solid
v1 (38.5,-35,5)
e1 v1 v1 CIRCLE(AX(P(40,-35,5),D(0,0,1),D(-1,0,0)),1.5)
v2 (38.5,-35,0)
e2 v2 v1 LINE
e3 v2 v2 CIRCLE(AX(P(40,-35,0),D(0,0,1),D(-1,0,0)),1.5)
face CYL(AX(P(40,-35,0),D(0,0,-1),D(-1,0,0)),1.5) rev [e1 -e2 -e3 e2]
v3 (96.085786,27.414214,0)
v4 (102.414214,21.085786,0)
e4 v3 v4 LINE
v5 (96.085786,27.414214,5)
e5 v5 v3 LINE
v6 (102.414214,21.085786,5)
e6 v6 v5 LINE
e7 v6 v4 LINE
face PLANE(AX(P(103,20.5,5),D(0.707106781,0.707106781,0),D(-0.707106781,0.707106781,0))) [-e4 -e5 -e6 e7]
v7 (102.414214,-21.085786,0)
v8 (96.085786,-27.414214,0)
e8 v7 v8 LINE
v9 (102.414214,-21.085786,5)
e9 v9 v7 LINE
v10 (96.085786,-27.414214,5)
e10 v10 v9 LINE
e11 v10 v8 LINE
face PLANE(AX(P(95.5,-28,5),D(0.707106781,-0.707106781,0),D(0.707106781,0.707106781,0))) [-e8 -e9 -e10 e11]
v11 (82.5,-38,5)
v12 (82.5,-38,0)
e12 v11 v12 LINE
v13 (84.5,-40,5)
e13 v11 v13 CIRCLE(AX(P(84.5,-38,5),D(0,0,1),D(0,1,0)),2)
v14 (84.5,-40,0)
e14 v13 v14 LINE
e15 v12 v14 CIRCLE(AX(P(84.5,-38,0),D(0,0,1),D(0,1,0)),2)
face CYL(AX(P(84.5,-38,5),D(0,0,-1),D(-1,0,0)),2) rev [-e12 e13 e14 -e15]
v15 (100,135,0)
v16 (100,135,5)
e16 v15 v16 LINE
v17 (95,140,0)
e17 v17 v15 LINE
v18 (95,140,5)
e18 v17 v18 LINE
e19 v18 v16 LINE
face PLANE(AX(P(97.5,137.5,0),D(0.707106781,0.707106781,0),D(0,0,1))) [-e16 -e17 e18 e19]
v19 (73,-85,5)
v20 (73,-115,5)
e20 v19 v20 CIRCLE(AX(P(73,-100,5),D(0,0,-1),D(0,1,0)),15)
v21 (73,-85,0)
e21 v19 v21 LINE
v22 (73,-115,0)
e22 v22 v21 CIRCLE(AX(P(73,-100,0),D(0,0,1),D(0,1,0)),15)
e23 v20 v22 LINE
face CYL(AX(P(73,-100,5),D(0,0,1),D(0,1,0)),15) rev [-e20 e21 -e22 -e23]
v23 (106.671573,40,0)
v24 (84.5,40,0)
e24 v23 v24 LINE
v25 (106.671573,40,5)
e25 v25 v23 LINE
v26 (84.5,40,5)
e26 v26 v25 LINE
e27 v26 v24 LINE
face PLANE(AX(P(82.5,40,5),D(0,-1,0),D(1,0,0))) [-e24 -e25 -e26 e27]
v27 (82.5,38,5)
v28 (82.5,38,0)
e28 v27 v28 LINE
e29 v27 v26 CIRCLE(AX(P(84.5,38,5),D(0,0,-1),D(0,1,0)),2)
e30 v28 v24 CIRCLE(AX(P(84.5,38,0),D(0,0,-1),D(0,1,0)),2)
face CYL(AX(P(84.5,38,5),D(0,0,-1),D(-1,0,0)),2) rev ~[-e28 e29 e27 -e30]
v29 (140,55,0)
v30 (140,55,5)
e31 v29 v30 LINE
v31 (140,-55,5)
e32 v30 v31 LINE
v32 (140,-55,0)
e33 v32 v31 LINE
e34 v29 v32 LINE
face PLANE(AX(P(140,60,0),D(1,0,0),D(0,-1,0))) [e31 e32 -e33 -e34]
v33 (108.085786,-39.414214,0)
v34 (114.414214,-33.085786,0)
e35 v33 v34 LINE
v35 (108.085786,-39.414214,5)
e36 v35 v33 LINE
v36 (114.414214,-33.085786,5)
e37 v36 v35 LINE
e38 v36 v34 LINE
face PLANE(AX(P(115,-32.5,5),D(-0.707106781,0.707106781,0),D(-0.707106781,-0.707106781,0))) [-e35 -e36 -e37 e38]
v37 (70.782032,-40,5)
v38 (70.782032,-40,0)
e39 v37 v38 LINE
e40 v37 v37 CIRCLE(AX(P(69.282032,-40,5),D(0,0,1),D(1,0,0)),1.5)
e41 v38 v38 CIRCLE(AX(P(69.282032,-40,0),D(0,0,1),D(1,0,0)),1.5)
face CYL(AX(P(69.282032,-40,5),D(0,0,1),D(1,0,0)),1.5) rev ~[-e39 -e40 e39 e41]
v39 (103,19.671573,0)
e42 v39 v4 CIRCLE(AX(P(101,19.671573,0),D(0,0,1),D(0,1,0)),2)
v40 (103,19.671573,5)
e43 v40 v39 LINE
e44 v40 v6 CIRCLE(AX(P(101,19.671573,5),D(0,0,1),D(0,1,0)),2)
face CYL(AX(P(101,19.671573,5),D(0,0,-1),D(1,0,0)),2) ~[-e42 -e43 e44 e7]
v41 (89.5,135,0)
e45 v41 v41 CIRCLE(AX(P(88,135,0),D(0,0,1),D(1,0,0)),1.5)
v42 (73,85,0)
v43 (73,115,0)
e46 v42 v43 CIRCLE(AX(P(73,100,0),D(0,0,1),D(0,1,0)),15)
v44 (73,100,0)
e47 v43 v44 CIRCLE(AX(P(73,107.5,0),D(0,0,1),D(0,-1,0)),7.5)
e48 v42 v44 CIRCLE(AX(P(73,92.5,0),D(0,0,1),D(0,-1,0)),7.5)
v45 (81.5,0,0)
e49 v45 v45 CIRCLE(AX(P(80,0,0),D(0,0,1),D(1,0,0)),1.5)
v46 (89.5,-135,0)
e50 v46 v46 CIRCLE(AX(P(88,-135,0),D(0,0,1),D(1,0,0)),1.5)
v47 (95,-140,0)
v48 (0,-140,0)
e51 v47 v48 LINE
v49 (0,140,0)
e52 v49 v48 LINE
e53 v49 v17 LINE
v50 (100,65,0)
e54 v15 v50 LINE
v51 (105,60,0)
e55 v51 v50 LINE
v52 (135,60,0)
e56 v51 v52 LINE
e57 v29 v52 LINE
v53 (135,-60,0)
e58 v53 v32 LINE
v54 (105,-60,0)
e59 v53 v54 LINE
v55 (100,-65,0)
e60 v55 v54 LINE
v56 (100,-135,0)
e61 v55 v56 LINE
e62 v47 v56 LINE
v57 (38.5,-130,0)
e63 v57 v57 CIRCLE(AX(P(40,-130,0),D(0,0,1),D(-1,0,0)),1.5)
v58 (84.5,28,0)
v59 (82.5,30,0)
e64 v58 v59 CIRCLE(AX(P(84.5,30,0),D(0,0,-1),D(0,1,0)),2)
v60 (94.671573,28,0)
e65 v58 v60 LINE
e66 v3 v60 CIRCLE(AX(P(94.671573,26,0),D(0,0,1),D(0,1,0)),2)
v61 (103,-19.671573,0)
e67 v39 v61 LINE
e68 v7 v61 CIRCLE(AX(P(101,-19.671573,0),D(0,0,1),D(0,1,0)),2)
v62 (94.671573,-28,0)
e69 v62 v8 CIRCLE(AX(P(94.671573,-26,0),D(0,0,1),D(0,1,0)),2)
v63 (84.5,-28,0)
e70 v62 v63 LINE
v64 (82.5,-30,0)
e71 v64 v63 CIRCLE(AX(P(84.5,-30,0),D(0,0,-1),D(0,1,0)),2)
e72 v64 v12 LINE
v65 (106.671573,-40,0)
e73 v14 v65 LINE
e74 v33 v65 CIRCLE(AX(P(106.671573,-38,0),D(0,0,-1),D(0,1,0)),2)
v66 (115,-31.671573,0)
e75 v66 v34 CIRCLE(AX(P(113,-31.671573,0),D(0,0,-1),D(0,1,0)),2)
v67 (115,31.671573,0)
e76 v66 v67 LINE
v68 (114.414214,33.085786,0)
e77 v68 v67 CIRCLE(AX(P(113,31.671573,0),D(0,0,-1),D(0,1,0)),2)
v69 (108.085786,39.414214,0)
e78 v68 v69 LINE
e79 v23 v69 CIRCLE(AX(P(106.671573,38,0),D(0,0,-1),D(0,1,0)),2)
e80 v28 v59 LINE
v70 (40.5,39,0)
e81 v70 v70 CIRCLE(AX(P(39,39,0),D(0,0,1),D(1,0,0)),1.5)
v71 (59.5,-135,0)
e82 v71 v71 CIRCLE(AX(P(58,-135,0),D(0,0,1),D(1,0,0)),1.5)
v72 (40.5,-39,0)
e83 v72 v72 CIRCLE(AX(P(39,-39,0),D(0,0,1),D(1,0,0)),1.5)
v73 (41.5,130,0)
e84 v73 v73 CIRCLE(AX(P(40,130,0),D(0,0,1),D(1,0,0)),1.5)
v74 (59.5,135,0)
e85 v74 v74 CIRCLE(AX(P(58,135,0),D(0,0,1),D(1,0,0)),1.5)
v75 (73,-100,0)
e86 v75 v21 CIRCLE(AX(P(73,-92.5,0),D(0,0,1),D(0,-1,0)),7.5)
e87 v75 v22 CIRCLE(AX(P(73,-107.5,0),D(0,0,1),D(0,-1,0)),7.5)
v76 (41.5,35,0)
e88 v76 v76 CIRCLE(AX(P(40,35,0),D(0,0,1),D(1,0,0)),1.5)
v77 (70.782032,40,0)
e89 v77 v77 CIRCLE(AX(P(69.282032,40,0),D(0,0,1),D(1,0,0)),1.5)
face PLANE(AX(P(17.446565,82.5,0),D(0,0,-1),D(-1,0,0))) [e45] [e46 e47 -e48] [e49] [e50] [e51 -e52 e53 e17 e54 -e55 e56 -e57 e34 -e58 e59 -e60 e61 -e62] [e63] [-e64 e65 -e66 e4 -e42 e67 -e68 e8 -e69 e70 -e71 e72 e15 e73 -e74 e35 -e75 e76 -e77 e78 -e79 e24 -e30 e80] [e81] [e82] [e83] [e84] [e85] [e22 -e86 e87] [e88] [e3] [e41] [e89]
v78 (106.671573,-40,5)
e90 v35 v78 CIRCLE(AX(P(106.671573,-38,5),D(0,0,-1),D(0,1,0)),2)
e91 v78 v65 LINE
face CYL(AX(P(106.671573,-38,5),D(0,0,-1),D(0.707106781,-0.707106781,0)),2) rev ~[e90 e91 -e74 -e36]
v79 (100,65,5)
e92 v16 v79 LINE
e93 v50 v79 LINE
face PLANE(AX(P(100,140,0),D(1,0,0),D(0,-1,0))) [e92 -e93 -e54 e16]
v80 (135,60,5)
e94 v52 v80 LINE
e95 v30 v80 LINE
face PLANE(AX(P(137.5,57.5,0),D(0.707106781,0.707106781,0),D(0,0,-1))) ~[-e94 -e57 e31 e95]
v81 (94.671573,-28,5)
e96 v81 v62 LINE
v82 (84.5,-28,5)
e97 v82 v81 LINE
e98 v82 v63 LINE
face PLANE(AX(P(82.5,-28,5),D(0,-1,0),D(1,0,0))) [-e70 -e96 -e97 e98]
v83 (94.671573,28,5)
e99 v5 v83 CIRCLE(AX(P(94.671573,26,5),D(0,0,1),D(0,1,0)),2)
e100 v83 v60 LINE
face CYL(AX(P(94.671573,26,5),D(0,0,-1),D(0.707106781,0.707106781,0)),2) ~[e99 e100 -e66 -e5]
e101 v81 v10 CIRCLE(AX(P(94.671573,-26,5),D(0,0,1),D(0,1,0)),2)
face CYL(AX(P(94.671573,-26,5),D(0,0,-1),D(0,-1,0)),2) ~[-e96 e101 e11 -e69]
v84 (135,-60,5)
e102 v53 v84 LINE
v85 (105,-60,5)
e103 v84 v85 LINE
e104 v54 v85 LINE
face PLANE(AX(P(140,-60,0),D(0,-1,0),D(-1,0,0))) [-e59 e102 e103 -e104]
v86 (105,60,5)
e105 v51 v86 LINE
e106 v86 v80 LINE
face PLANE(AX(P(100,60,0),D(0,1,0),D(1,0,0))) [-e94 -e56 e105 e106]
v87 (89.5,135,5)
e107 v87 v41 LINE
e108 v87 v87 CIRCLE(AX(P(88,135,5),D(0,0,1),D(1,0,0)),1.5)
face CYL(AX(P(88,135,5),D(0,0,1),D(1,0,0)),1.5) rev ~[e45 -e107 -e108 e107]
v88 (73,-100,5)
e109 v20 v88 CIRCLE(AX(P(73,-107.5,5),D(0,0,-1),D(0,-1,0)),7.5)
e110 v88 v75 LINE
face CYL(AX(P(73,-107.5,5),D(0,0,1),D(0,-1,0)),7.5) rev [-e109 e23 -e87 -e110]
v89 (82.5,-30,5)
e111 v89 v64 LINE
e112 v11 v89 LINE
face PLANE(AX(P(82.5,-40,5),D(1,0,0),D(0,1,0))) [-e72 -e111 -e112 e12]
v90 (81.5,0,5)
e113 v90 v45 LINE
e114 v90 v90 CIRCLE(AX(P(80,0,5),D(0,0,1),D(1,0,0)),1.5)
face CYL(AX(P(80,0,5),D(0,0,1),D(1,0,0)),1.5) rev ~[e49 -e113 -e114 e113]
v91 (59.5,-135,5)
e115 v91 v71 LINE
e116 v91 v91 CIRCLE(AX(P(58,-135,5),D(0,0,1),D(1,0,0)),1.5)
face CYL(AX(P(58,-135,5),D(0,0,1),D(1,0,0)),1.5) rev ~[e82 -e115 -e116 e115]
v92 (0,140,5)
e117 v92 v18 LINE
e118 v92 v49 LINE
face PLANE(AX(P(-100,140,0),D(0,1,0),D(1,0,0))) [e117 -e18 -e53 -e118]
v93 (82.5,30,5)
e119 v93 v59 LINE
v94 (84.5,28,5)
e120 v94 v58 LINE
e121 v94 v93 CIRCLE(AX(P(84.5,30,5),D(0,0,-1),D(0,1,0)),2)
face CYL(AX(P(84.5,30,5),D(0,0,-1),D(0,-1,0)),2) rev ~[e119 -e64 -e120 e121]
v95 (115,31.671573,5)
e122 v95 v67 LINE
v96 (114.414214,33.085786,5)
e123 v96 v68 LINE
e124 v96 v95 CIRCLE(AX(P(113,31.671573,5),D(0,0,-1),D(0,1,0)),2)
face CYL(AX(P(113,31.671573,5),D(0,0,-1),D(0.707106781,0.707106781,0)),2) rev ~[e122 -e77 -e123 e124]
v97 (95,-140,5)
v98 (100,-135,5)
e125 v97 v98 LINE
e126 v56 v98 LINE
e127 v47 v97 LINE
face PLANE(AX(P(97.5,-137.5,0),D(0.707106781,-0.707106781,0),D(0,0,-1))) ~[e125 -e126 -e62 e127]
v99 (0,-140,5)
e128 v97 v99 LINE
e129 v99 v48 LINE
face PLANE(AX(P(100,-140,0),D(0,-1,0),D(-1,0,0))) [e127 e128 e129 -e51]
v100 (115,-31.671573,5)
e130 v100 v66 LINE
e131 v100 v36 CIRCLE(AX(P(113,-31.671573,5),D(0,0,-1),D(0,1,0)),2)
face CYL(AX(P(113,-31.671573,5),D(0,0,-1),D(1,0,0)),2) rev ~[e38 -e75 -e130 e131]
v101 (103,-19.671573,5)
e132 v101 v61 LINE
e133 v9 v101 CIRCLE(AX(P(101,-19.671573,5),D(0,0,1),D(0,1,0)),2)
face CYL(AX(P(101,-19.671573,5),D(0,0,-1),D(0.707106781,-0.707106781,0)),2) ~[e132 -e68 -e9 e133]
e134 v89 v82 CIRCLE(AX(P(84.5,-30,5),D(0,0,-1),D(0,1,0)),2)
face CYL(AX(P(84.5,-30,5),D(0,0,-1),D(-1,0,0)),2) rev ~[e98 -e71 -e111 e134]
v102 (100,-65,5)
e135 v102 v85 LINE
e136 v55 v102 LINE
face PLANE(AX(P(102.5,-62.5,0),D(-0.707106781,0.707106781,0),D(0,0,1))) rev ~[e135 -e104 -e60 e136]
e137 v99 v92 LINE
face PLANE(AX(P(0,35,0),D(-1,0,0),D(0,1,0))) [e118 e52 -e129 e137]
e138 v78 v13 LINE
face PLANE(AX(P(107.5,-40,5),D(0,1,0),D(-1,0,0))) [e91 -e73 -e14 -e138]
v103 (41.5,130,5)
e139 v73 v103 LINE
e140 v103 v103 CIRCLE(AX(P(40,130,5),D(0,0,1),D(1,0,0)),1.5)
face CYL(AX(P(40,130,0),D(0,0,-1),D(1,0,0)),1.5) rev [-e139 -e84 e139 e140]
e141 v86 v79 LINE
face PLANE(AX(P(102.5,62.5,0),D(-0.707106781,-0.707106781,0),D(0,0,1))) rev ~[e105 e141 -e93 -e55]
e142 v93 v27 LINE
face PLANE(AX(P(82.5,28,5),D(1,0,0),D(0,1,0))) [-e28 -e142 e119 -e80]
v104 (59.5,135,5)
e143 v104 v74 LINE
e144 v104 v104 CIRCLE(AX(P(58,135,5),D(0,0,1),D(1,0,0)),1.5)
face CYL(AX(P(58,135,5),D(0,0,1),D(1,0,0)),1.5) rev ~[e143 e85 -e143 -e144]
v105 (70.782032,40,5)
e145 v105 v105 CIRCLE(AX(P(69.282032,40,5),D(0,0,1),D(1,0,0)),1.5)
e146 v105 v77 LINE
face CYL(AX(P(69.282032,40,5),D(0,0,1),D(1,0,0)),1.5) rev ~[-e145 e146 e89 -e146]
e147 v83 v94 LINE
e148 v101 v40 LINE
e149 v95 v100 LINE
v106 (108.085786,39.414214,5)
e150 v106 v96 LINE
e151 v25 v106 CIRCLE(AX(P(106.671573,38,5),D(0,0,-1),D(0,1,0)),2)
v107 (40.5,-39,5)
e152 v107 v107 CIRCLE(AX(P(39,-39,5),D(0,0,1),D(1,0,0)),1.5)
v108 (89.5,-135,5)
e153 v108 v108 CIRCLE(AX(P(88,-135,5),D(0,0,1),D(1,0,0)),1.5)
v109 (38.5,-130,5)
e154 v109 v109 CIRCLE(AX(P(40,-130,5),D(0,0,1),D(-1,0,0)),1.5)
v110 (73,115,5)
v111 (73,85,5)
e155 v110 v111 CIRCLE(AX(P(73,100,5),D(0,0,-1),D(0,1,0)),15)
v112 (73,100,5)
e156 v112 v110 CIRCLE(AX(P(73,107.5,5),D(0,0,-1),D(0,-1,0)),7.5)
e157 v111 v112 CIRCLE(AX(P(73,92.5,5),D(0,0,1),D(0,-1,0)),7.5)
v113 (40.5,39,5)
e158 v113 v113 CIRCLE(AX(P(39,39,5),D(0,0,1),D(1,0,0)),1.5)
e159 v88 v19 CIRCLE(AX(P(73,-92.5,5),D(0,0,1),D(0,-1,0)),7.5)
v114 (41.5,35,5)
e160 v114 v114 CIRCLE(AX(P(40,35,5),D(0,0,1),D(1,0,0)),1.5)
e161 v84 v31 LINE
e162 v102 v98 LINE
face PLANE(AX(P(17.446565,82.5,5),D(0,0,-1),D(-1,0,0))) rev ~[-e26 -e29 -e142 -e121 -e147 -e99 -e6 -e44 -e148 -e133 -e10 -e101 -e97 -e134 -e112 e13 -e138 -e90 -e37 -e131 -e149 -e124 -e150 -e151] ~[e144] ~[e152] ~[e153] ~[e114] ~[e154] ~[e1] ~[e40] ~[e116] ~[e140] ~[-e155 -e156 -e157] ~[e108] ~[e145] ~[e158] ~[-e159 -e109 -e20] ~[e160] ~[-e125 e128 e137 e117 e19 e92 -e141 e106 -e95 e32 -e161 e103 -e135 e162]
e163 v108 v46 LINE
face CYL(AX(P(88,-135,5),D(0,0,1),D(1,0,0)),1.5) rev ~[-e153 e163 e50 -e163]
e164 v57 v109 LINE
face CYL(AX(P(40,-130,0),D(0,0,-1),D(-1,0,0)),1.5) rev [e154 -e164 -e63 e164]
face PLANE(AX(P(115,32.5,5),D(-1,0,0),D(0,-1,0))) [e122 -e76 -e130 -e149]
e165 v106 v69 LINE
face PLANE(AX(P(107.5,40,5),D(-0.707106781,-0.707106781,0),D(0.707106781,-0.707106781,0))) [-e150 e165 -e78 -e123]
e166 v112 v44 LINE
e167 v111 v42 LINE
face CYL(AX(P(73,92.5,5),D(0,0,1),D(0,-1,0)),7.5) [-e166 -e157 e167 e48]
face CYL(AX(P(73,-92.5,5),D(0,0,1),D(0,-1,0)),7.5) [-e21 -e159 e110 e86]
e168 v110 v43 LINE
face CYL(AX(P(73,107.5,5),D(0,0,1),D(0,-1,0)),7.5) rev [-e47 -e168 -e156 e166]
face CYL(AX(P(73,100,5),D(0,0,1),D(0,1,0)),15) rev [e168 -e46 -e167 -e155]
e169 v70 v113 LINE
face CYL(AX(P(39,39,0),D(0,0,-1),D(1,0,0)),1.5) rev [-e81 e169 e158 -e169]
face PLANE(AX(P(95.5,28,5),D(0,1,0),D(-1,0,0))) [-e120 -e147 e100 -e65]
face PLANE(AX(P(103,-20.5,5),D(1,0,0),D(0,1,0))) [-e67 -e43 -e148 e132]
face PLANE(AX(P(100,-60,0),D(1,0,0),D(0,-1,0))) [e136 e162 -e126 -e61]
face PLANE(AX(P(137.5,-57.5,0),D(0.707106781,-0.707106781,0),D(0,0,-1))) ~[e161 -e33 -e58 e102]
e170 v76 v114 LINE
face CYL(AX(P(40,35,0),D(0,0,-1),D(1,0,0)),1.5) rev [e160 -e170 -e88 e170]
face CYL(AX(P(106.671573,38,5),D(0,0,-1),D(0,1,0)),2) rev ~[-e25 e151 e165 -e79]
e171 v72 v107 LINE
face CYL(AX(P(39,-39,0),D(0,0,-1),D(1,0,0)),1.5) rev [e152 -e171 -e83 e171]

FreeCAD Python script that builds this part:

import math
import FreeCAD as App
import Part
import Sketcher
from FreeCAD import Vector
Q = App.Units.Quantity


def edges_at(feature, points):
    """Names of the edges that pass closest to the given points."""
    edges = feature.Shape.Edges
    near = lambda p: min(range(len(edges)), key=lambda i: edges[i].distToShape(Part.Vertex(*p))[0])
    return sorted({f"Edge{near(p) + 1}" for p in points})

doc = App.newDocument("Part")
params = doc.addObject("Spreadsheet::Sheet", "Params")
for row, (alias, value) in enumerate([
    ("sketch1_diameter", "3 mm"),
    ("sketch1_width", "200 mm"),
    ("sketch1_width2", "40 mm"),
    ("sketch1_height", "80 mm"),
    ("sketch1_height2", "120 mm"),
    ("pad1_length", "5 mm"),
    ("chamfer_size", "5 mm"),
    ("sketch2_diameter", "3 mm"),
    ("sketch2_radius", "15 mm"),
    ("sketch2_width", "50 mm"),
    ("sketch2_width2", "25 mm"),
    ("sketch2_width3", "13 mm"),
    ("pocket1_length", "10 mm"),
    ("fillet_radius", "10 mm"),
    ("fillet2_radius", "2 mm"),
    ("sketch3_width", "95 mm"),
    ("sketch3_width2", "30 mm"),
    ("sketch3_height", "280 mm"),
    ("sketch3_height2", "70 mm"),
    ("sketch3_height3", "110 mm"),
    ("sketch4_radius", "10 mm"),
    ("sketch4_radius2", "15 mm"),
    ("sketch4_height", "95 mm"),
    ("pad2_length", "5 mm"),
], start=1):
    params.set(f"A{row}", alias)
    params.set(f"B{row}", "=" + value)
    params.setAlias(f"B{row}", alias)

body = doc.addObject("PartDesign::Body", "Body")

# Sketch on XY plane
sketch1 = body.newObject("Sketcher::SketchObject", "Sketch")
sketch1.AttachmentSupport = (doc.getObject("XY_Plane"), [""])
sketch1.MapMode = "FlatFace"
sketch1.addGeometry([
    Part.LineSegment(Vector(-100, -60, 0), Vector(-100, -140, 0)),  # 0
    Part.LineSegment(Vector(-100, -140, 0), Vector(100, -140, 0)),  # 1
    Part.LineSegment(Vector(100, -140, 0), Vector(100, -60, 0)),  # 2
    Part.LineSegment(Vector(100, -60, 0), Vector(140, -60, 0)),  # 3
    Part.LineSegment(Vector(140, -60, 0), Vector(140, 60, 0)),  # 4
    Part.LineSegment(Vector(140, 60, 0), Vector(100, 60, 0)),  # 5
    Part.LineSegment(Vector(100, 60, 0), Vector(100, 140, 0)),  # 6
    Part.LineSegment(Vector(100, 140, 0), Vector(-100, 140, 0)),  # 7
    Part.LineSegment(Vector(-100, 140, 0), Vector(-100, 60, 0)),  # 8
    Part.LineSegment(Vector(-100, 60, 0), Vector(-140, 60, 0)),  # 9
    Part.LineSegment(Vector(-140, 60, 0), Vector(-140, -60, 0)),  # 10
    Part.LineSegment(Vector(-140, -60, 0), Vector(-100, -60, 0)),  # 11
    Part.Circle(Vector(40, -130, 0), Vector(0, 0, 1), 1.5),  # 12
    Part.Circle(Vector(39, -39, 0), Vector(0, 0, 1), 1.5),  # 13
    Part.Circle(Vector(40, -35, 0), Vector(0, 0, 1), 1.5),  # 14
    Part.Circle(Vector(-40, -130, 0), Vector(0, 0, 1), 1.5),  # 15
    Part.Circle(Vector(-39, -39, 0), Vector(0, 0, 1), 1.5),  # 16
    Part.Circle(Vector(-40, -35, 0), Vector(0, 0, 1), 1.5),  # 17
    Part.Circle(Vector(40, 35, 0), Vector(0, 0, 1), 1.5),  # 18
    Part.Circle(Vector(39, 39, 0), Vector(0, 0, 1), 1.5),  # 19
    Part.Circle(Vector(40, 130, 0), Vector(0, 0, 1), 1.5),  # 20
    Part.Circle(Vector(-40, 35, 0), Vector(0, 0, 1), 1.5),  # 21
    Part.Circle(Vector(-39, 39, 0), Vector(0, 0, 1), 1.5),  # 22
    Part.Circle(Vector(-40, 130, 0), Vector(0, 0, 1), 1.5),  # 23
], False)
sketch1.addConstraint([
    Sketcher.Constraint("Coincident", 0, 2, 1, 1),
    Sketcher.Constraint("Coincident", 1, 2, 2, 1),
    Sketcher.Constraint("Coincident", 2, 2, 3, 1),
    Sketcher.Constraint("Coincident", 3, 2, 4, 1),
    Sketcher.Constraint("Coincident", 4, 2, 5, 1),
    Sketcher.Constraint("Coincident", 5, 2, 6, 1),
    Sketcher.Constraint("Coincident", 6, 2, 7, 1),
    Sketcher.Constraint("Coincident", 7, 2, 8, 1),
    Sketcher.Constraint("Coincident", 8, 2, 9, 1),
    Sketcher.Constraint("Coincident", 9, 2, 10, 1),
    Sketcher.Constraint("Coincident", 10, 2, 11, 1),
    Sketcher.Constraint("Coincident", 11, 2, 0, 1),
    Sketcher.Constraint("Vertical", 0),
    Sketcher.Constraint("Horizontal", 1),
    Sketcher.Constraint("Vertical", 2),
    Sketcher.Constraint("Horizontal", 3),
    Sketcher.Constraint("Vertical", 4),
    Sketcher.Constraint("Horizontal", 5),
    Sketcher.Constraint("Vertical", 6),
    Sketcher.Constraint("Horizontal", 7),
    Sketcher.Constraint("Vertical", 8),
    Sketcher.Constraint("Horizontal", 9),
    Sketcher.Constraint("Vertical", 10),
    Sketcher.Constraint("Horizontal", 11),
    Sketcher.Constraint("Equal", 12, 13),
    Sketcher.Constraint("Equal", 13, 14),
    Sketcher.Constraint("Equal", 14, 15),
    Sketcher.Constraint("Equal", 15, 16),
    Sketcher.Constraint("Equal", 16, 17),
    Sketcher.Constraint("Equal", 17, 18),
    Sketcher.Constraint("Equal", 18, 19),
    Sketcher.Constraint("Equal", 19, 20),
    Sketcher.Constraint("Equal", 20, 21),
    Sketcher.Constraint("Equal", 21, 22),
    Sketcher.Constraint("Equal", 22, 23),
    Sketcher.Constraint("Symmetric", 17, 3, 18, 3, -1, 1),
    Sketcher.Constraint("Symmetric", 16, 3, 19, 3, -1, 1),
    Sketcher.Constraint("Symmetric", 15, 3, 20, 3, -1, 1),
    Sketcher.Constraint("Symmetric", 14, 3, 21, 3, -1, 1),
    Sketcher.Constraint("Symmetric", 13, 3, 22, 3, -1, 1),
    Sketcher.Constraint("Symmetric", 12, 3, 23, 3, -1, 1),
    Sketcher.Constraint("Symmetric", 0, 2, 6, 2, -1, 1),
    Sketcher.Constraint("Symmetric", 2, 2, 8, 2, -1, 1),
    Sketcher.Constraint("Symmetric", 4, 2, 10, 2, -1, 1),
    Sketcher.Constraint("Symmetric", 12, 3, 15, 3, -2),
    Sketcher.Constraint("Symmetric", 13, 3, 16, 3, -2),
    Sketcher.Constraint("Symmetric", 14, 3, 17, 3, -2),
    Sketcher.Constraint("Symmetric", 5, 2, 8, 2, -2),
    Sketcher.Constraint("Vertical", 12, 3, 14, 3),
    Sketcher.Constraint("Diameter", 12, Q("3 mm")),
    Sketcher.Constraint("DistanceX", 1, 1, 1, 2, Q("200 mm")),
    Sketcher.Constraint("DistanceX", 3, 1, 3, 2, Q("40 mm")),
    Sketcher.Constraint("DistanceY", 0, 2, 0, 1, Q("80 mm")),
    Sketcher.Constraint("DistanceY", 4, 1, 4, 2, Q("120 mm")),
    Sketcher.Constraint("DistanceX", -1, 1, 12, 3, Q("40 mm")),
    Sketcher.Constraint("DistanceY", 12, 3, -1, 1, Q("130 mm")),
    Sketcher.Constraint("DistanceX", -1, 1, 13, 3, Q("39 mm")),
    Sketcher.Constraint("DistanceY", 13, 3, -1, 1, Q("39 mm")),
    Sketcher.Constraint("DistanceY", 14, 3, -1, 1, Q("35 mm")),
])
sketch1.setExpression("Constraints[49]", "Params.sketch1_diameter")
sketch1.setExpression("Constraints[50]", "Params.sketch1_width")
sketch1.setExpression("Constraints[51]", "Params.sketch1_width2")
sketch1.setExpression("Constraints[52]", "Params.sketch1_height")
sketch1.setExpression("Constraints[53]", "Params.sketch1_height2")
pad1 = body.newObject("PartDesign::Pad", "Pad")
pad1.Profile = sketch1
pad1.setExpression("Length", "Params.pad1_length")
doc.recompute()

chamfer = body.newObject("PartDesign::Chamfer", "Chamfer")
chamfer.Base = (pad1, edges_at(pad1, [
    (-100, -140, 2.5),
    (-100, -60, 2.5),
    (-140, -60, 2.5),
    (-140, 60, 2.5),
    (-100, 60, 2.5),
    (-100, 140, 2.5),
    (100, 140, 2.5),
    (100, 60, 2.5),
    (140, 60, 2.5),
    (140, -60, 2.5),
    (100, -60, 2.5),
    (100, -140, 2.5),
]))
chamfer.setExpression("Size", "Params.chamfer_size")

# Sketch on XY plane
sketch2 = body.newObject("Sketcher::SketchObject", "Sketch001")
sketch2.AttachmentSupport = (doc.getObject("XY_Plane"), [""])
sketch2.MapMode = "FlatFace"
sketch2.AttachmentOffset = App.Placement(Vector(0, 0, 5), App.Rotation())
sketch2.addGeometry([
    Part.Circle(Vector(-88, 135, 0), Vector(0, 0, 1), 1.5),  # 0
    Part.Circle(Vector(-58, 135, 0), Vector(0, 0, 1), 1.5),  # 1
    Part.Circle(Vector(58, 135, 0), Vector(0, 0, 1), 1.5),  # 2
    Part.Circle(Vector(88, 135, 0), Vector(0, 0, 1), 1.5),  # 3
    Part.Circle(Vector(88, -135, 0), Vector(0, 0, 1), 1.5),  # 4
    Part.Circle(Vector(58, -135, 0), Vector(0, 0, 1), 1.5),  # 5
    Part.Circle(Vector(-58, -135, 0), Vector(0, 0, 1), 1.5),  # 6
    Part.Circle(Vector(-88, -135, 0), Vector(0, 0, 1), 1.5),  # 7
    Part.Circle(Vector(-80, 0, 0), Vector(0, 0, 1), 1.5),  # 8
    Part.Circle(Vector(-69.3, 40, 0), Vector(0, 0, 1), 1.5),  # 9
    Part.Circle(Vector(69.3, 40, 0), Vector(0, 0, 1), 1.5),  # 10
    Part.Circle(Vector(80, 0, 0), Vector(0, 0, 1), 1.5),  # 11
    Part.Circle(Vector(69.3, -40, 0), Vector(0, 0, 1), 1.5),  # 12
    Part.Circle(Vector(-69.3, -40, 0), Vector(0, 0, 1), 1.5),  # 13
    Part.LineSegment(Vector(25, -35, 0), Vector(-25, -35, 0)),  # 14
    Part.ArcOfCircle(Part.Circle(Vector(-40, -35, 0), Vector(0, 0, 1), 15), math.radians(-90), math.radians(0)),  # 15
    Part.LineSegment(Vector(-40, -50, 0), Vector(-40, -115, 0)),  # 16
    Part.ArcOfCircle(Part.Circle(Vector(-40, -130, 0), Vector(0, 0, 1), 15), math.radians(0), math.radians(90)),  # 17
    Part.LineSegment(Vector(-25, -130, 0), Vector(25, -130, 0)),  # 18
    Part.ArcOfCircle(Part.Circle(Vector(40, -130, 0), Vector(0, 0, 1), 15), math.radians(90), math.radians(180)),  # 19
    Part.LineSegment(Vector(40, -115, 0), Vector(40, -50, 0)),  # 20
    Part.ArcOfCircle(Part.Circle(Vector(40, -35, 0), Vector(0, 0, 1), 15), math.radians(180), math.radians(270)),  # 21
    Part.LineSegment(Vector(-25, 35, 0), Vector(25, 35, 0)),  # 22
    Part.ArcOfCircle(Part.Circle(Vector(40, 35, 0), Vector(0, 0, 1), 15), math.radians(90), math.radians(180)),  # 23
    Part.LineSegment(Vector(40, 50, 0), Vector(40, 115, 0)),  # 24
    Part.ArcOfCircle(Part.Circle(Vector(40, 130, 0), Vector(0, 0, 1), 15), math.radians(180), math.radians(270)),  # 25
    Part.LineSegment(Vector(25, 130, 0), Vector(-25, 130, 0)),  # 26
    Part.ArcOfCircle(Part.Circle(Vector(-40, 130, 0), Vector(0, 0, 1), 15), math.radians(-90), math.radians(0)),  # 27
    Part.LineSegment(Vector(-40, 115, 0), Vector(-40, 50, 0)),  # 28
    Part.ArcOfCircle(Part.Circle(Vector(-40, 35, 0), Vector(0, 0, 1), 15), math.radians(0), math.radians(90)),  # 29
    Part.LineSegment(Vector(-20.1, -8.1, 0), Vector(-8.5, -19.9, 0)),  # 30
    Part.LineSegment(Vector(-8.5, -19.9, 0), Vector(8.1, -20.1, 0)),  # 31
    Part.LineSegment(Vector(8.1, -20.1, 0), Vector(19.9, -8.5, 0)),  # 32
    Part.LineSegment(Vector(19.9, -8.5, 0), Vector(20.1, 8.1, 0)),  # 33
    Part.LineSegment(Vector(20.1, 8.1, 0), Vector(8.5, 19.9, 0)),  # 34
    Part.LineSegment(Vector(8.5, 19.9, 0), Vector(-8.1, 20.1, 0)),  # 35
    Part.LineSegment(Vector(-8.1, 20.1, 0), Vector(-19.9, 8.5, 0)),  # 36
    Part.LineSegment(Vector(-19.9, 8.5, 0), Vector(-20.1, -8.1, 0)),  # 37
    Part.LineSegment(Vector(-82.5, 40, 0), Vector(-107.5, 40, 0)),  # 38
    Part.LineSegment(Vector(-107.5, 40, 0), Vector(-115, 32.5, 0)),  # 39
    Part.LineSegment(Vector(-115, 32.5, 0), Vector(-115, -32.5, 0)),  # 40
    Part.LineSegment(Vector(-115, -32.5, 0), Vector(-107.5, -40, 0)),  # 41
    Part.LineSegment(Vector(-107.5, -40, 0), Vector(-82.5, -40, 0)),  # 42
    Part.LineSegment(Vector(-82.5, -40, 0), Vector(-82.5, -28, 0)),  # 43
    Part.LineSegment(Vector(-82.5, -28, 0), Vector(-95.5, -28, 0)),  # 44
    Part.LineSegment(Vector(-95.5, -28, 0), Vector(-103, -20.5, 0)),  # 45
    Part.LineSegment(Vector(-103, -20.5, 0), Vector(-103, 20.5, 0)),  # 46
    Part.LineSegment(Vector(-103, 20.5, 0), Vector(-95.5, 28, 0)),  # 47
    Part.LineSegment(Vector(-95.5, 28, 0), Vector(-82.5, 28, 0)),  # 48
    Part.LineSegment(Vector(-82.5, 28, 0), Vector(-82.5, 40, 0)),  # 49
    Part.LineSegment(Vector(82.5, -40, 0), Vector(107.5, -40, 0)),  # 50
    Part.LineSegment(Vector(107.5, -40, 0), Vector(115, -32.5, 0)),  # 51
    Part.LineSegment(Vector(115, -32.5, 0), Vector(115, 32.5, 0)),  # 52
    Part.LineSegment(Vector(115, 32.5, 0), Vector(107.5, 40, 0)),  # 53
    Part.LineSegment(Vector(107.5, 40, 0), Vector(82.5, 40, 0)),  # 54
    Part.LineSegment(Vector(82.5, 40, 0), Vector(82.5, 28, 0)),  # 55
    Part.LineSegment(Vector(82.5, 28, 0), Vector(95.5, 28, 0)),  # 56
    Part.LineSegment(Vector(95.5, 28, 0), Vector(103, 20.5, 0)),  # 57
    Part.LineSegment(Vector(103, 20.5, 0), Vector(103, -20.5, 0)),  # 58
    Part.LineSegment(Vector(103, -20.5, 0), Vector(95.5, -28, 0)),  # 59
    Part.LineSegment(Vector(95.5, -28, 0), Vector(82.5, -28, 0)),  # 60
    Part.LineSegment(Vector(82.5, -28, 0), Vector(82.5, -40, 0)),  # 61
    Part.ArcOfCircle(Part.Circle(Vector(-73, -92.5, 0), Vector(0, 0, 1), 7.5), math.radians(90), math.radians(270)),  # 62
    Part.ArcOfCircle(Part.Circle(Vector(-73, -100, 0), Vector(0, 0, 1), 15), math.radians(90), math.radians(270)),  # 63
    Part.ArcOfCircle(Part.Circle(Vector(-73, -107.5, 0), Vector(0, 0, 1), 7.5), math.radians(-90), math.radians(90)),  # 64
    Part.ArcOfCircle(Part.Circle(Vector(-73, 100, 0), Vector(0, 0, 1), 15), math.radians(90), math.radians(270)),  # 65
    Part.ArcOfCircle(Part.Circle(Vector(-73, 92.5, 0), Vector(0, 0, 1), 7.5), math.radians(90), math.radians(270)),  # 66
    Part.ArcOfCircle(Part.Circle(Vector(-73, 107.5, 0), Vector(0, 0, 1), 7.5), math.radians(-90), math.radians(90)),  # 67
    Part.ArcOfCircle(Part.Circle(Vector(73, -100, 0), Vector(0, 0, 1), 15), math.radians(-90), math.radians(90)),  # 68
    Part.ArcOfCircle(Part.Circle(Vector(73, -92.5, 0), Vector(0, 0, 1), 7.5), math.radians(-90), math.radians(90)),  # 69
    Part.ArcOfCircle(Part.Circle(Vector(73, -107.5, 0), Vector(0, 0, 1), 7.5), math.radians(90), math.radians(270)),  # 70
    Part.ArcOfCircle(Part.Circle(Vector(73, 92.5, 0), Vector(0, 0, 1), 7.5), math.radians(-90), math.radians(90)),  # 71
    Part.ArcOfCircle(Part.Circle(Vector(73, 100, 0), Vector(0, 0, 1), 15), math.radians(-90), math.radians(90)),  # 72
    Part.ArcOfCircle(Part.Circle(Vector(73, 107.5, 0), Vector(0, 0, 1), 7.5), math.radians(90), math.radians(270)),  # 73
], False)
sketch2.addConstraint([
    Sketcher.Constraint("Coincident", 14, 2, 15, 2),
    Sketcher.Constraint("Coincident", 15, 1, 16, 1),
    Sketcher.Constraint("Coincident", 16, 2, 17, 2),
    Sketcher.Constraint("Coincident", 17, 1, 18, 1),
    Sketcher.Constraint("Coincident", 18, 2, 19, 2),
    Sketcher.Constraint("Coincident", 19, 1, 20, 1),
    Sketcher.Constraint("Coincident", 20, 2, 21, 2),
    Sketcher.Constraint("Coincident", 21, 1, 14, 1),
    Sketcher.Constraint("Coincident", 22, 2, 23, 2),
    Sketcher.Constraint("Coincident", 23, 1, 24, 1),
    Sketcher.Constraint("Coincident", 24, 2, 25, 2),
    Sketcher.Constraint("Coincident", 25, 1, 26, 1),
    Sketcher.Constraint("Coincident", 26, 2, 27, 2),
    Sketcher.Constraint("Coincident", 27, 1, 28, 1),
    Sketcher.Constraint("Coincident", 28, 2, 29, 2),
    Sketcher.Constraint("Coincident", 29, 1, 22, 1),
    Sketcher.Constraint("Coincident", 30, 2, 31, 1),
    Sketcher.Constraint("Coincident", 31, 2, 32, 1),
    Sketcher.Constraint("Coincident", 32, 2, 33, 1),
    Sketcher.Constraint("Coincident", 33, 2, 34, 1),
    Sketcher.Constraint("Coincident", 34, 2, 35, 1),
    Sketcher.Constraint("Coincident", 35, 2, 36, 1),
    Sketcher.Constraint("Coincident", 36, 2, 37, 1),
    Sketcher.Constraint("Coincident", 37, 2, 30, 1),
    Sketcher.Constraint("Coincident", 38, 2, 39, 1),
    Sketcher.Constraint("Coincident", 39, 2, 40, 1),
    Sketcher.Constraint("Coincident", 40, 2, 41, 1),
    Sketcher.Constraint("Coincident", 41, 2, 42, 1),
    Sketcher.Constraint("Coincident", 42, 2, 43, 1),
    Sketcher.Constraint("Coincident", 43, 2, 44, 1),
    Sketcher.Constraint("Coincident", 44, 2, 45, 1),
    Sketcher.Constraint("Coincident", 45, 2, 46, 1),
    Sketcher.Constraint("Coincident", 46, 2, 47, 1),
    Sketcher.Constraint("Coincident", 47, 2, 48, 1),
    Sketcher.Constraint("Coincident", 48, 2, 49, 1),
    Sketcher.Constraint("Coincident", 49, 2, 38, 1),
    Sketcher.Constraint("Coincident", 50, 2, 51, 1),
    Sketcher.Constraint("Coincident", 51, 2, 52, 1),
    Sketcher.Constraint("Coincident", 52, 2, 53, 1),
    Sketcher.Constraint("Coincident", 53, 2, 54, 1),
    Sketcher.Constraint("Coincident", 54, 2, 55, 1),
    Sketcher.Constraint("Coincident", 55, 2, 56, 1),
    Sketcher.Constraint("Coincident", 56, 2, 57, 1),
    Sketcher.Constraint("Coincident", 57, 2, 58, 1),
    Sketcher.Constraint("Coincident", 58, 2, 59, 1),
    Sketcher.Constraint("Coincident", 59, 2, 60, 1),
    Sketcher.Constraint("Coincident", 60, 2, 61, 1),
    Sketcher.Constraint("Coincident", 61, 2, 50, 1),
    Sketcher.Constraint("Tangent", 62, 1, 63, 1),
    Sketcher.Constraint("Tangent", 63, 2, 64, 1),
    Sketcher.Constraint("Tangent", 64, 2, 62, 2),
    Sketcher.Constraint("Tangent", 65, 2, 66, 2),
    Sketcher.Constraint("Tangent", 66, 1, 67, 1),
    Sketcher.Constraint("Tangent", 67, 2, 65, 1),
    Sketcher.Constraint("Tangent", 68, 2, 69, 2),
    Sketcher.Constraint("Tangent", 69, 1, 70, 1),
    Sketcher.Constraint("Tangent", 70, 2, 68, 1),
    Sketcher.Constraint("Tangent", 71, 1, 72, 1),
    Sketcher.Constraint("Tangent", 72, 2, 73, 1),
    Sketcher.Constraint("Tangent", 73, 2, 71, 2),
    Sketcher.Constraint("Horizontal", 14),
    Sketcher.Constraint("Vertical", 16),
    Sketcher.Constraint("Horizontal", 18),
    Sketcher.Constraint("Vertical", 20),
    Sketcher.Constraint("Horizontal", 22),
    Sketcher.Constraint("Vertical", 24),
    Sketcher.Constraint("Horizontal", 26),
    Sketcher.Constraint("Vertical", 28),
    Sketcher.Constraint("Horizontal", 38),
    Sketcher.Constraint("Vertical", 40),
    Sketcher.Constraint("Horizontal", 42),
    Sketcher.Constraint("Vertical", 43),
    Sketcher.Constraint("Horizontal", 44),
    Sketcher.Constraint("Vertical", 46),
    Sketcher.Constraint("Horizontal", 48),
    Sketcher.Constraint("Vertical", 49),
    Sketcher.Constraint("Horizontal", 50),
    Sketcher.Constraint("Vertical", 52),
    Sketcher.Constraint("Horizontal", 54),
    Sketcher.Constraint("Vertical", 55),
    Sketcher.Constraint("Horizontal", 56),
    Sketcher.Constraint("Vertical", 58),
    Sketcher.Constraint("Horizontal", 60),
    Sketcher.Constraint("Vertical", 61),
    Sketcher.Constraint("Coincident", 64, 2, 63, 3),
    Sketcher.Constraint("Coincident", 66, 1, 65, 3),
    Sketcher.Constraint("Coincident", 69, 1, 68, 3),
    Sketcher.Constraint("Coincident", 73, 2, 72, 3),
    Sketcher.Constraint("Equal", 0, 1),
    Sketcher.Constraint("Equal", 1, 2),
    Sketcher.Constraint("Equal", 2, 3),
    Sketcher.Constraint("Equal", 3, 4),
    Sketcher.Constraint("Equal", 4, 5),
    Sketcher.Constraint("Equal", 5, 6),
    Sketcher.Constraint("Equal", 6, 7),
    Sketcher.Constraint("Equal", 7, 8),
    Sketcher.Constraint("Equal", 8, 9),
    Sketcher.Constraint("Equal", 9, 10),
    Sketcher.Constraint("Equal", 10, 11),
    Sketcher.Constraint("Equal", 11, 12),
    Sketcher.Constraint("Equal", 12, 13),
    Sketcher.Constraint("Equal", 15, 17),
    Sketcher.Constraint("Equal", 17, 19),
    Sketcher.Constraint("Equal", 19, 21),
    Sketcher.Constraint("Equal", 21, 23),
    Sketcher.Constraint("Equal", 23, 25),
    Sketcher.Constraint("Equal", 25, 27),
    Sketcher.Constraint("Equal", 27, 29),
    Sketcher.Constraint("Equal", 29, 63),
    Sketcher.Constraint("Equal", 63, 65),
    Sketcher.Constraint("Equal", 65, 68),
    Sketcher.Constraint("Equal", 70, 71),
    Sketcher.Constraint("Symmetric", 0, 3, 4, 3, -1, 1),
    Sketcher.Constraint("Symmetric", 1, 3, 5, 3, -1, 1),
    Sketcher.Constraint("Symmetric", 2, 3, 6, 3, -1, 1),
    Sketcher.Constraint("Symmetric", 3, 3, 7, 3, -1, 1),
    Sketcher.Constraint("Symmetric", 8, 3, 11, 3, -1, 1),
    Sketcher.Constraint("Symmetric", 9, 3, 12, 3, -1, 1),
    Sketcher.Constraint("Symmetric", 10, 3, 13, 3, -1, 1),
    Sketcher.Constraint("Symmetric", 15, 3, 23, 3, -1, 1),
    Sketcher.Constraint("Symmetric", 17, 3, 25, 3, -1, 1),
    Sketcher.Constraint("Symmetric", 19, 3, 27, 3, -1, 1),
    Sketcher.Constraint("Symmetric", 21, 3, 29, 3, -1, 1),
    Sketcher.Constraint("Symmetric", 65, 3, 68, 3, -1, 1),
    Sketcher.Constraint("Symmetric", 62, 3, 71, 3, -1, 1),
    Sketcher.Constraint("Symmetric", 30, 2, 34, 2, -1, 1),
    Sketcher.Constraint("Symmetric", 31, 2, 35, 2, -1, 1),
    Sketcher.Constraint("Symmetric", 32, 2, 36, 2, -1, 1),
    Sketcher.Constraint("Symmetric", 33, 2, 37, 2, -1, 1),
    Sketcher.Constraint("Symmetric", 38, 2, 50, 2, -1, 1),
    Sketcher.Constraint("Symmetric", 39, 2, 51, 2, -1, 1),
    Sketcher.Constraint("Symmetric", 41, 2, 53, 2, -1, 1),
    Sketcher.Constraint("Symmetric", 43, 2, 55, 2, -1, 1),
    Sketcher.Constraint("Symmetric", 45, 2, 57, 2, -1, 1),
    Sketcher.Constraint("Symmetric", 47, 2, 59, 2, -1, 1),
    Sketcher.Constraint("Symmetric", 1, 3, 2, 3, -2),
    Sketcher.Constraint("Symmetric", 0, 3, 3, 3, -2),
    Sketcher.Constraint("Symmetric", 9, 3, 10, 3, -2),
    Sketcher.Constraint("Symmetric", 17, 3, 19, 3, -2),
    Sketcher.Constraint("Symmetric", 15, 3, 21, 3, -2),
    Sketcher.Constraint("Symmetric", 63, 3, 68, 3, -2),
    Sketcher.Constraint("Symmetric", 41, 2, 50, 2, -2),
    Sketcher.Constraint("Symmetric", 48, 2, 55, 2, -2),
    Sketcher.Constraint("PointOnObject", 8, 3, -1),
    Sketcher.Constraint("Perpendicular", 30, 32),
    Sketcher.Constraint("Perpendicular", 31, 33),
    Sketcher.Constraint("Perpendicular", 39, 41),
    Sketcher.Constraint("Parallel", 41, 45),
    Sketcher.Constraint("Perpendicular", 45, 47),
    Sketcher.Constraint("Perpendicular", 51, 53),
    Sketcher.Constraint("Parallel", 53, 57),
    Sketcher.Constraint("Perpendicular", 57, 59),
    Sketcher.Constraint("Horizontal", 0, 3, 1, 3),
    Sketcher.Constraint("Horizontal", 21, 3, 14, 2),
    Sketcher.Constraint("Horizontal", 19, 3, 17, 1),
    Sketcher.Constraint("Horizontal", 29, 3, 22, 2),
    Sketcher.Constraint("Horizontal", 27, 3, 25, 1),
    Sketcher.Constraint("Horizontal", 10, 3, 38, 2),
    Sketcher.Constraint("Horizontal", 40, 2, 51, 2),
    Sketcher.Constraint("Horizontal", 46, 2, 57, 2),
    Sketcher.Constraint("Horizontal", 19, 1, 63, 2),
    Sketcher.Constraint("Vertical", 15, 3, 17, 3),
    Sketcher.Constraint("Vertical", 62, 3, 63, 3),
    Sketcher.Constraint("Vertical", 65, 3, 66, 3),
    Sketcher.Constraint("Vertical", 68, 3, 69, 3),
    Sketcher.Constraint("Vertical", 71, 3, 72, 3),
    Sketcher.Constraint("Vertical", 29, 3, 15, 1),
    Sketcher.Constraint("Vertical", 25, 3, 19, 1),
    Sketcher.Constraint("Vertical", 20, 2, 23, 1),
    Sketcher.Constraint("Vertical", 16, 2, 27, 1),
    Sketcher.Constraint("Vertical", 55, 2, 60, 2),
    Sketcher.Constraint("Equal", 28, 40),
    Sketcher.Constraint("Equal", 30, 31),
    Sketcher.Constraint("Equal", 31, 32),
    Sketcher.Constraint("Equal", 32, 33),
    Sketcher.Constraint("Equal", 41, 45),
    Sketcher.Constraint("Diameter", 0, Q("3 mm")),
    Sketcher.Constraint("Radius", 15, Q("15 mm")),
    Sketcher.Constraint("DistanceX", 14, 2, 14, 1, Q("50 mm")),
    Sketcher.Constraint("DistanceX", 38, 2, 38, 1, Q("25 mm")),
    Sketcher.Constraint("DistanceX", 44, 2, 44, 1, Q("13 mm")),
    Sketcher.Constraint("DistanceY", 16, 2, 16, 1, Q("65 mm")),
    Sketcher.Constraint("DistanceY", 43, 1, 43, 2, Q("12 mm")),
    Sketcher.Constraint("DistanceX", 0, 3, -1, 1, Q("88 mm")),
    Sketcher.Constraint("DistanceY", -1, 1, 0, 3, Q("135 mm")),
    Sketcher.Constraint("DistanceX", 1, 3, -1, 1, Q("58 mm")),
    Sketcher.Constraint("DistanceX", 8, 3, -1, 1, Q("80 mm")),
    Sketcher.Constraint("DistanceY", -1, 1, 9, 3, Q("40 mm")),
    Sketcher.Constraint("DistanceY", 15, 3, -1, 1, Q("35 mm")),
    Sketcher.Constraint("DistanceX", 62, 3, -1, 1, Q("73 mm")),
    Sketcher.Constraint("DistanceX", 39, 2, -1, 1, Q("115 mm")),
    Sketcher.Constraint("Angle", 30, Q("-45.5 deg")),
    Sketcher.Constraint("Angle", 31, Q("-0.5 deg")),
    Sketcher.Constraint("DistanceY", 31, 2, -1, 1, Q("20.071531 mm")),
    Sketcher.Constraint("DistanceX", 9, 3, -1, 1, Q("69.282032 mm")),
])
sketch2.setExpression("Constraints[176]", "Params.sketch2_diameter")
sketch2.setExpression("Constraints[177]", "Params.sketch2_radius")
sketch2.setExpression("Constraints[178]", "Params.sketch2_width")
sketch2.setExpression("Constraints[179]", "Params.sketch2_width2")
sketch2.setExpression("Constraints[180]", "Params.sketch2_width3")
pocket1 = body.newObject("PartDesign::Pocket", "Pocket")
pocket1.Profile = sketch2
pocket1.setExpression("Length", "Params.pocket1_length")
doc.recompute()

fillet = body.newObject("PartDesign::Fillet", "Fillet")
fillet.Base = (pocket1, edges_at(pocket1, [
    (-25, 35, 2.5),
    (-40, 50, 2.5),
    (-40, 115, 2.5),
    (-25, 130, 2.5),
    (25, 130, 2.5),
    (40, 115, 2.5),
    (40, 50, 2.5),
    (25, 35, 2.5),
    (-25, -130, 2.5),
    (-40, -115, 2.5),
    (-40, -50, 2.5),
    (-25, -35, 2.5),
    (25, -35, 2.5),
    (40, -50, 2.5),
    (40, -115, 2.5),
    (25, -130, 2.5),
]))
fillet.setExpression("Radius", "Params.fillet_radius")
doc.recompute()

fillet2 = body.newObject("PartDesign::Fillet", "Fillet001")
fillet2.Base = (fillet, edges_at(fillet, [
    (-82.5, -40, 2.5),
    (-107.5, -40, 2.5),
    (-115, -32.5, 2.5),
    (-115, 32.5, 2.5),
    (-107.5, 40, 2.5),
    (-82.5, 40, 2.5),
    (-82.5, 28, 2.5),
    (-95.5, 28, 2.5),
    (-103, 20.5, 2.5),
    (-103, -20.5, 2.5),
    (-95.5, -28, 2.5),
    (-82.5, -28, 2.5),
    (115, -32.5, 2.5),
    (107.5, -40, 2.5),
    (82.5, -40, 2.5),
    (82.5, -28, 2.5),
    (95.5, -28, 2.5),
    (103, -20.5, 2.5),
    (103, 20.5, 2.5),
    (95.5, 28, 2.5),
    (82.5, 28, 2.5),
    (82.5, 40, 2.5),
    (107.5, 40, 2.5),
    (115, 32.5, 2.5),
]))
fillet2.setExpression("Radius", "Params.fillet2_radius")

# Sketch on XY plane
sketch3 = body.newObject("Sketcher::SketchObject", "Sketch002")
sketch3.AttachmentSupport = (doc.getObject("XY_Plane"), [""])
sketch3.MapMode = "FlatFace"
sketch3.AttachmentOffset = App.Placement(Vector(0, 0, 5), App.Rotation())
sketch3.addGeometry([
    Part.LineSegment(Vector(0, -140, 0), Vector(0, 140, 0)),  # 0
    Part.LineSegment(Vector(0, 140, 0), Vector(-95, 140, 0)),  # 1
    Part.LineSegment(Vector(-95, 140, 0), Vector(-100, 135, 0)),  # 2
    Part.LineSegment(Vector(-100, 135, 0), Vector(-100, 65, 0)),  # 3
    Part.LineSegment(Vector(-100, 65, 0), Vector(-105, 60, 0)),  # 4
    Part.LineSegment(Vector(-105, 60, 0), Vector(-135, 60, 0)),  # 5
    Part.LineSegment(Vector(-135, 60, 0), Vector(-140, 55, 0)),  # 6
    Part.LineSegment(Vector(-140, 55, 0), Vector(-140, -55, 0)),  # 7
    Part.LineSegment(Vector(-140, -55, 0), Vector(-135, -60, 0)),  # 8
    Part.LineSegment(Vector(-135, -60, 0), Vector(-105, -60, 0)),  # 9
    Part.LineSegment(Vector(-105, -60, 0), Vector(-100, -65, 0)),  # 10
    Part.LineSegment(Vector(-100, -65, 0), Vector(-100, -135, 0)),  # 11
    Part.LineSegment(Vector(-100, -135, 0), Vector(-95, -140, 0)),  # 12
    Part.LineSegment(Vector(-95, -140, 0), Vector(0, -140, 0)),  # 13
], False)
sketch3.addConstraint([
    Sketcher.Constraint("Coincident", 0, 2, 1, 1),
    Sketcher.Constraint("Coincident", 1, 2, 2, 1),
    Sketcher.Constraint("Coincident", 2, 2, 3, 1),
    Sketcher.Constraint("Coincident", 3, 2, 4, 1),
    Sketcher.Constraint("Coincident", 4, 2, 5, 1),
    Sketcher.Constraint("Coincident", 5, 2, 6, 1),
    Sketcher.Constraint("Coincident", 6, 2, 7, 1),
    Sketcher.Constraint("Coincident", 7, 2, 8, 1),
    Sketcher.Constraint("Coincident", 8, 2, 9, 1),
    Sketcher.Constraint("Coincident", 9, 2, 10, 1),
    Sketcher.Constraint("Coincident", 10, 2, 11, 1),
    Sketcher.Constraint("Coincident", 11, 2, 12, 1),
    Sketcher.Constraint("Coincident", 12, 2, 13, 1),
    Sketcher.Constraint("Coincident", 13, 2, 0, 1),
    Sketcher.Constraint("Vertical", 0),
    Sketcher.Constraint("Horizontal", 1),
    Sketcher.Constraint("Vertical", 3),
    Sketcher.Constraint("Horizontal", 5),
    Sketcher.Constraint("Vertical", 7),
    Sketcher.Constraint("Horizontal", 9),
    Sketcher.Constraint("Vertical", 11),
    Sketcher.Constraint("Horizontal", 13),
    Sketcher.Constraint("Symmetric", 0, 2, 13, 2, -1, 1),
    Sketcher.Constraint("Symmetric", 5, 2, 8, 2, -1),
    Sketcher.Constraint("Symmetric", 3, 2, 10, 2, -1),
    Sketcher.Constraint("Parallel", 2, 4),
    Sketcher.Constraint("Parallel", 4, 6),
    Sketcher.Constraint("Perpendicular", 6, 8),
    Sketcher.Constraint("Parallel", 8, 10),
    Sketcher.Constraint("Parallel", 10, 12),
    Sketcher.Constraint("Vertical", 4, 2, 9, 2),
    Sketcher.Constraint("Vertical", 1, 2, 12, 2),
    Sketcher.Constraint("Equal", 2, 4),
    Sketcher.Constraint("Equal", 4, 6),
    Sketcher.Constraint("DistanceX", 1, 2, 1, 1, Q("95 mm")),
    Sketcher.Constraint("DistanceX", 5, 2, 5, 1, Q("30 mm")),
    Sketcher.Constraint("DistanceY", 0, 1, 0, 2, Q("280 mm")),
    Sketcher.Constraint("DistanceY", 3, 2, 3, 1, Q("70 mm")),
    Sketcher.Constraint("DistanceY", 7, 2, 7, 1, Q("110 mm")),
])
sketch3.setExpression("Constraints[34]", "Params.sketch3_width")
sketch3.setExpression("Constraints[35]", "Params.sketch3_width2")
sketch3.setExpression("Constraints[36]", "Params.sketch3_height")
sketch3.setExpression("Constraints[37]", "Params.sketch3_height2")
sketch3.setExpression("Constraints[38]", "Params.sketch3_height3")
pocket2 = body.newObject("PartDesign::Pocket", "Pocket001")
pocket2.Profile = sketch3
pocket2.Type = "ThroughAll"

# Sketch on XY plane
sketch4 = body.newObject("Sketcher::SketchObject", "Sketch003")
sketch4.AttachmentSupport = (doc.getObject("XY_Plane"), [""])
sketch4.MapMode = "FlatFace"
sketch4.addGeometry([
    Part.LineSegment(Vector(0, 35, 0), Vector(0, 130, 0)),  # 0
    Part.LineSegment(Vector(0, 130, 0), Vector(17, 130, 0)),  # 1
    Part.ArcOfCircle(Part.Circle(Vector(17, 120, 0), Vector(0, 0, 1), 10), math.radians(24), math.radians(90)),  # 2
    Part.ArcOfCircle(Part.Circle(Vector(40, 130, 0), Vector(0, 0, 1), 15), math.radians(-156), math.radians(-114)),  # 3
    Part.ArcOfCircle(Part.Circle(Vector(30, 107, 0), Vector(0, 0, 1), 10), math.radians(0), math.radians(66)),  # 4
    Part.LineSegment(Vector(40, 107, 0), Vector(40, 58, 0)),  # 5
    Part.ArcOfCircle(Part.Circle(Vector(30, 58, 0), Vector(0, 0, 1), 10), math.radians(-66), math.radians(0)),  # 6
    Part.ArcOfCircle(Part.Circle(Vector(40, 35, 0), Vector(0, 0, 1), 15), math.radians(114), math.radians(156)),  # 7
    Part.ArcOfCircle(Part.Circle(Vector(17, 45, 0), Vector(0, 0, 1), 10), math.radians(-90), math.radians(-24)),  # 8
    Part.LineSegment(Vector(17, 35, 0), Vector(0, 35, 0)),  # 9
    Part.LineSegment(Vector(0, -20, 0), Vector(0, 20, 0)),  # 10
    Part.LineSegment(Vector(0, 20, 0), Vector(8, 20, 0)),  # 11
    Part.LineSegment(Vector(8, 20, 0), Vector(20, 8, 0)),  # 12
    Part.LineSegment(Vector(20, 8, 0), Vector(20, -8, 0)),  # 13
    Part.LineSegment(Vector(20, -8, 0), Vector(8, -20, 0)),  # 14
    Part.LineSegment(Vector(8, -20, 0), Vector(0, -20, 0)),  # 15
    Part.LineSegment(Vector(0, -130, 0), Vector(0, -35, 0)),  # 16
    Part.LineSegment(Vector(0, -35, 0), Vector(17, -35, 0)),  # 17
    Part.ArcOfCircle(Part.Circle(Vector(17, -45, 0), Vector(0, 0, 1), 10), math.radians(24), math.radians(90)),  # 18
    Part.ArcOfCircle(Part.Circle(Vector(40, -35, 0), Vector(0, 0, 1), 15), math.radians(-156), math.radians(-114)),  # 19
    Part.ArcOfCircle(Part.Circle(Vector(30, -58, 0), Vector(0, 0, 1), 10), math.radians(0), math.radians(66)),  # 20
    Part.LineSegment(Vector(40, -58, 0), Vector(40, -107, 0)),  # 21
    Part.ArcOfCircle(Part.Circle(Vector(30, -107, 0), Vector(0, 0, 1), 10), math.radians(-66), math.radians(0)),  # 22
    Part.ArcOfCircle(Part.Circle(Vector(40, -130, 0), Vector(0, 0, 1), 15), math.radians(114), math.radians(156)),  # 23
    Part.ArcOfCircle(Part.Circle(Vector(17, -120, 0), Vector(0, 0, 1), 10), math.radians(-90), math.radians(-24)),  # 24
    Part.LineSegment(Vector(17, -130, 0), Vector(0, -130, 0)),  # 25
], False)
sketch4.addConstraint([
    Sketcher.Constraint("Coincident", 0, 2, 1, 1),
    Sketcher.Constraint("Tangent", 1, 2, 2, 2),
    Sketcher.Constraint("Tangent", 2, 1, 3, 1),
    Sketcher.Constraint("Tangent", 3, 2, 4, 2),
    Sketcher.Constraint("Tangent", 4, 1, 5, 1),
    Sketcher.Constraint("Tangent", 5, 2, 6, 2),
    Sketcher.Constraint("Tangent", 6, 1, 7, 1),
    Sketcher.Constraint("Tangent", 7, 2, 8, 2),
    Sketcher.Constraint("Tangent", 8, 1, 9, 1),
    Sketcher.Constraint("Coincident", 9, 2, 0, 1),
    Sketcher.Constraint("Coincident", 10, 2, 11, 1),
    Sketcher.Constraint("Coincident", 11, 2, 12, 1),
    Sketcher.Constraint("Coincident", 12, 2, 13, 1),
    Sketcher.Constraint("Coincident", 13, 2, 14, 1),
    Sketcher.Constraint("Coincident", 14, 2, 15, 1),
    Sketcher.Constraint("Coincident", 15, 2, 10, 1),
    Sketcher.Constraint("Coincident", 16, 2, 17, 1),
    Sketcher.Constraint("Tangent", 17, 2, 18, 2),
    Sketcher.Constraint("Tangent", 18, 1, 19, 1),
    Sketcher.Constraint("Tangent", 19, 2, 20, 2),
    Sketcher.Constraint("Tangent", 20, 1, 21, 1),
    Sketcher.Constraint("Tangent", 21, 2, 22, 2),
    Sketcher.Constraint("Tangent", 22, 1, 23, 1),
    Sketcher.Constraint("Tangent", 23, 2, 24, 2),
    Sketcher.Constraint("Tangent", 24, 1, 25, 1),
    Sketcher.Constraint("Coincident", 25, 2, 16, 1),
    Sketcher.Constraint("Vertical", 0),
    Sketcher.Constraint("Horizontal", 1),
    Sketcher.Constraint("Vertical", 5),
    Sketcher.Constraint("Horizontal", 9),
    Sketcher.Constraint("Vertical", 10),
    Sketcher.Constraint("Vertical", 16),
    Sketcher.Constraint("Horizontal", 17),
    Sketcher.Constraint("Vertical", 21),
    Sketcher.Constraint("Horizontal", 25),
    Sketcher.Constraint("Equal", 2, 4),
    Sketcher.Constraint("Equal", 4, 6),
    Sketcher.Constraint("Equal", 3, 7),
    Sketcher.Constraint("Equal", 6, 8),
    Sketcher.Constraint("Equal", 8, 18),
    Sketcher.Constraint("Equal", 7, 19),
    Sketcher.Constraint("Equal", 18, 20),
    Sketcher.Constraint("Equal", 20, 22),
    Sketcher.Constraint("Equal", 19, 23),
    Sketcher.Constraint("Equal", 22, 24),
    Sketcher.Constraint("Symmetric", 10, 2, 15, 2, -1, 1),
    Sketcher.Constraint("Symmetric", 9, 2, 16, 2, -1, 1),
    Sketcher.Constraint("Symmetric", 7, 3, 19, 3, -1),
    Sketcher.Constraint("Symmetric", 4, 3, 22, 3, -1),
    Sketcher.Constraint("Symmetric", 2, 3, 24, 3, -1),
    Sketcher.Constraint("PointOnObject", 0, 2, -2),
    Sketcher.Constraint("Perpendicular", 11, 13),
    Sketcher.Constraint("Perpendicular", 12, 14),
    Sketcher.Constraint("Perpendicular", 13, 15),
    Sketcher.Constraint("Horizontal", 3, 3, 0, 2),
    Sketcher.Constraint("Horizontal", 7, 3, 8, 1),
    Sketcher.Constraint("Vertical", 3, 3, 7, 3),
    Sketcher.Constraint("Vertical", 23, 3, 4, 1),
    Sketcher.Constraint("Equal", 12, 13),
    Sketcher.Constraint("Equal", 13, 14),
    Sketcher.Constraint("Radius", 2, Q("10 mm")),
    Sketcher.Constraint("Radius", 3, Q("15 mm")),
    Sketcher.Constraint("DistanceY", 0, 1, 0, 2, Q("95 mm")),
    Sketcher.Constraint("DistanceY", -1, 1, 2, 3, Q("120 mm")),
    Sketcher.Constraint("DistanceX", -1, 1, 3, 3, Q("40 mm")),
    Sketcher.Constraint("Angle", 11, Q("-0.5 deg")),
    Sketcher.Constraint("Angle", 12, Q("-45.5 deg")),
    Sketcher.Constraint("Distance", 11, Q("8.458809 mm")),
    Sketcher.Constraint("DistanceY", 10, 1, 10, 2, Q("40.001523 mm")),
])
sketch4.setExpression("Constraints[60]", "Params.sketch4_radius")
sketch4.setExpression("Constraints[61]", "Params.sketch4_radius2")
sketch4.setExpression("Constraints[62]", "Params.sketch4_height")
pad2 = body.newObject("PartDesign::Pad", "Pad001")
pad2.Profile = sketch4
pad2.setExpression("Length", "Params.pad2_length")

doc.recompute()
